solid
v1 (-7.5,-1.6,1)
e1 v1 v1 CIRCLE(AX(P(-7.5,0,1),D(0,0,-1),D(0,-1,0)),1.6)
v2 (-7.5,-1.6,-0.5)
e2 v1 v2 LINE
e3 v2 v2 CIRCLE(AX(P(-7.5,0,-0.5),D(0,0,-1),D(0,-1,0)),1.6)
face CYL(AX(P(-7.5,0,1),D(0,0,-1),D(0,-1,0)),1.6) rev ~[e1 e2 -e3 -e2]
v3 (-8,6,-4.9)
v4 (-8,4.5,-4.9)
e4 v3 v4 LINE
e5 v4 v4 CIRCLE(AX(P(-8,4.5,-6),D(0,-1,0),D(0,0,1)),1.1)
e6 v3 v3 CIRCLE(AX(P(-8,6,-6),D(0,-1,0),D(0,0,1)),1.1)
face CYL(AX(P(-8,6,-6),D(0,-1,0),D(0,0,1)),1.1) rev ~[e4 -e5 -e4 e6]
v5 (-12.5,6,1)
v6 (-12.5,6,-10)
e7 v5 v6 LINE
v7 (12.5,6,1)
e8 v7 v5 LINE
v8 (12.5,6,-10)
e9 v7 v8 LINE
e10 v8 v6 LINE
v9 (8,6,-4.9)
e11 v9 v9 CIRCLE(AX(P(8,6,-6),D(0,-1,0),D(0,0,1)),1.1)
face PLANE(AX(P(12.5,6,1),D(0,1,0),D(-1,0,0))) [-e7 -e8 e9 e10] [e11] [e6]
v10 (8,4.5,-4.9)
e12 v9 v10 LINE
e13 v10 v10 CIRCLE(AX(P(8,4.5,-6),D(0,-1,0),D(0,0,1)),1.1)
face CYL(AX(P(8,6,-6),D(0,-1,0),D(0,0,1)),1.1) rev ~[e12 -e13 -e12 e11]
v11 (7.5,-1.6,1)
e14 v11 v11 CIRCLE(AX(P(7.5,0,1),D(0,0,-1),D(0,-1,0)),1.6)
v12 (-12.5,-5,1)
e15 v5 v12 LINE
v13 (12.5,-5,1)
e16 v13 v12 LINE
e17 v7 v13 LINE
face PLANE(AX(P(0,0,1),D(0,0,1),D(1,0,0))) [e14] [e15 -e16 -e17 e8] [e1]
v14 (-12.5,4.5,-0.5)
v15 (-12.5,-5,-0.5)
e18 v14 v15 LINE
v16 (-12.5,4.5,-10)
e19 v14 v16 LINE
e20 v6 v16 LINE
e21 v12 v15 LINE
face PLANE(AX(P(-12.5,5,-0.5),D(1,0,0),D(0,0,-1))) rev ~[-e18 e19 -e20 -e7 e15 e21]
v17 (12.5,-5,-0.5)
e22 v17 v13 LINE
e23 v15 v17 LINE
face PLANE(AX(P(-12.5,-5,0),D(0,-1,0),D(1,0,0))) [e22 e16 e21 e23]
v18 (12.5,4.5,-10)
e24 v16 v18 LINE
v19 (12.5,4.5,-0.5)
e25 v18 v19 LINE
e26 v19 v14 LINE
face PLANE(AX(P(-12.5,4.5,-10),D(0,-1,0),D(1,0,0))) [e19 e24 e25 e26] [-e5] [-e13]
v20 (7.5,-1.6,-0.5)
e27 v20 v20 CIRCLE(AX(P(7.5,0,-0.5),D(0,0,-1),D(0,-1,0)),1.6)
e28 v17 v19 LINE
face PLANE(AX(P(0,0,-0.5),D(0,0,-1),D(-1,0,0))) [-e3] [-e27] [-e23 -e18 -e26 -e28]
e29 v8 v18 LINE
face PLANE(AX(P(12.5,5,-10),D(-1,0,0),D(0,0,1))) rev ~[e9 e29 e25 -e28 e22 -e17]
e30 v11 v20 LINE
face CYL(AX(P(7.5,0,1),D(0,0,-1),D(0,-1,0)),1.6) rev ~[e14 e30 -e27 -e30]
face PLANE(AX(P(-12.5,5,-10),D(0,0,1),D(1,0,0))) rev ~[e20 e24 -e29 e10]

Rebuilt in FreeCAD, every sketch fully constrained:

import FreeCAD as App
import Part
import Sketcher
Q = App.Units.Quantity


def add_polygon(sketch, points):
    """Adds a closed chain of lines whose ends are joined by coincident constraints."""
    first, n = sketch.GeometryCount, len(points)
    for a, b in zip(points, points[1:] + points[:1]):
        sketch.addGeometry(Part.LineSegment(App.Vector(*a, 0), App.Vector(*b, 0)), False)
    for i in range(n):
        sketch.addConstraint(Sketcher.Constraint("Coincident", first + i, 2, first + (i + 1) % n, 1))

doc = App.newDocument("Part")
body = doc.addObject("PartDesign::Body", "Body")

sketch1 = doc.addObject("Sketcher::SketchObject", "Sketch")
body.addObject(sketch1)
sketch1.AttachmentSupport = (doc.XY_Plane, [""])
sketch1.MapMode = "FlatFace"
add_polygon(sketch1, [(12, 5), (-12, 5), (-12, -5), (12, -5)])
sketch1.addConstraint(Sketcher.Constraint("Horizontal", 0))
sketch1.addConstraint(Sketcher.Constraint("Vertical", 1))
sketch1.addConstraint(Sketcher.Constraint("Horizontal", 2))
sketch1.addConstraint(Sketcher.Constraint("Vertical", 3))
sketch1.addConstraint(Sketcher.Constraint("Symmetric", 0, 2, 2, 2, -1, 1))
sketch1.addConstraint(Sketcher.Constraint("DistanceX", 0, 2, 0, 1, Q("25 mm")))
sketch1.addConstraint(Sketcher.Constraint("DistanceY", 1, 2, 1, 1, Q("10 mm")))
pad1 = doc.addObject("PartDesign::Pad", "Pad")
body.addObject(pad1)
pad1.Profile = sketch1
pad1.Length = 1

sketch2 = doc.addObject("Sketcher::SketchObject", "Sketch001")
body.addObject(sketch2)
sketch2.AttachmentSupport = (doc.XY_Plane, [""])
sketch2.MapMode = "FlatFace"
sketch2.AttachmentOffset = App.Placement(App.Vector(0, 0, 1), App.Rotation())
add_polygon(sketch2, [(-12.5, 6), (-12.5, 5), (12.5, 5), (12.5, 6)])
sketch2.addConstraint(Sketcher.Constraint("Vertical", 0))
sketch2.addConstraint(Sketcher.Constraint("Horizontal", 1))
sketch2.addConstraint(Sketcher.Constraint("Vertical", 2))
sketch2.addConstraint(Sketcher.Constraint("Horizontal", 3))
sketch2.addConstraint(Sketcher.Constraint("DistanceX", 1, 1, 1, 2, Q("25 mm")))
sketch2.addConstraint(Sketcher.Constraint("DistanceY", 0, 2, 0, 1, Q("1 mm")))
sketch2.addConstraint(Sketcher.Constraint("DistanceY", -1, 1, 0, 2, Q("5 mm")))
sketch2.addConstraint(Sketcher.Constraint("DistanceX", 0, 2, -1, 1, Q("12.5 mm")))
pad2 = doc.addObject("PartDesign::Pad", "Pad001")
body.addObject(pad2)
pad2.Profile = sketch2
pad2.Length = 11
pad2.Reversed = True

sketch3 = doc.addObject("Sketcher::SketchObject", "Sketch002")
body.addObject(sketch3)
sketch3.AttachmentSupport = (doc.XY_Plane, [""])
sketch3.MapMode = "FlatFace"
add_polygon(sketch3, [(12, -5), (-12, -5), (-12, 5), (12, 5)])
sketch3.addConstraint(Sketcher.Constraint("Horizontal", 0))
sketch3.addConstraint(Sketcher.Constraint("Vertical", 1))
sketch3.addConstraint(Sketcher.Constraint("Horizontal", 2))
sketch3.addConstraint(Sketcher.Constraint("Vertical", 3))
sketch3.addConstraint(Sketcher.Constraint("Symmetric", 0, 2, 2, 2, -1, 1))
sketch3.addConstraint(Sketcher.Constraint("DistanceX", 0, 2, 0, 1, Q("25 mm")))
sketch3.addConstraint(Sketcher.Constraint("DistanceY", 1, 1, 1, 2, Q("10 mm")))
pad3 = doc.addObject("PartDesign::Pad", "Pad002")
body.addObject(pad3)
pad3.Profile = sketch3
pad3.Length = 0.5
pad3.Reversed = True

sketch4 = doc.addObject("Sketcher::SketchObject", "Sketch003")
body.addObject(sketch4)
sketch4.AttachmentSupport = (doc.XZ_Plane, [""])
sketch4.MapMode = "FlatFace"
sketch4.AttachmentOffset = App.Placement(App.Vector(0, 0, -5), App.Rotation())
add_polygon(sketch4, [(-12, 0), (-12, -10), (12, -10), (12, 0)])
sketch4.addConstraint(Sketcher.Constraint("Vertical", 0))
sketch4.addConstraint(Sketcher.Constraint("Horizontal", 1))
sketch4.addConstraint(Sketcher.Constraint("Vertical", 2))
sketch4.addConstraint(Sketcher.Constraint("Horizontal", 3))
sketch4.addConstraint(Sketcher.Constraint("DistanceX", 1, 1, 1, 2, Q("25 mm")))
sketch4.addConstraint(Sketcher.Constraint("DistanceY", 0, 2, 0, 1, Q("9.5 mm")))
sketch4.addConstraint(Sketcher.Constraint("DistanceY", 0, 2, -1, 1, Q("10 mm")))
sketch4.addConstraint(Sketcher.Constraint("DistanceX", 0, 2, -1, 1, Q("12.5 mm")))
pad4 = doc.addObject("PartDesign::Pad", "Pad003")
body.addObject(pad4)
pad4.Profile = sketch4
pad4.Length = 0.5

sketch5 = doc.addObject("Sketcher::SketchObject", "Sketch004")
body.addObject(sketch5)
sketch5.AttachmentSupport = (doc.XY_Plane, [""])
sketch5.MapMode = "FlatFace"
sketch5.AttachmentOffset = App.Placement(App.Vector(0, 0, 1), App.Rotation())
sketch5.addGeometry(Part.Circle(App.Vector(7.5, 0, 0), App.Vector(0, 0, 1), 1.6), False)
sketch5.addGeometry(Part.Circle(App.Vector(-7.5, 0, 0), App.Vector(0, 0, 1), 1.6), False)
sketch5.addConstraint(Sketcher.Constraint("Equal", 0, 1))
sketch5.addConstraint(Sketcher.Constraint("Symmetric", 0, 3, 1, 3, -1, 1))
sketch5.addConstraint(Sketcher.Constraint("PointOnObject", 0, 3, -1))
sketch5.addConstraint(Sketcher.Constraint("Diameter", 0, Q("3.2 mm")))
sketch5.addConstraint(Sketcher.Constraint("DistanceX", 1, 3, 0, 3, Q("15 mm")))
doc.recompute()
hole = doc.addObject("PartDesign::Hole", "Hole")
body.addObject(hole)
hole.Profile = sketch5
hole.ThreadType = "None"
hole.Diameter = 3.2
hole.DepthType = "Dimension"
hole.Depth = 8
hole.DrillPoint = "Angled"
hole.DrillPointAngle = 118

sketch6 = doc.addObject("Sketcher::SketchObject", "Sketch005")
body.addObject(sketch6)
sketch6.AttachmentSupport = (doc.XZ_Plane, [""])
sketch6.MapMode = "FlatFace"
sketch6.AttachmentOffset = App.Placement(App.Vector(0, 0, -6), App.Rotation())
sketch6.addGeometry(Part.Circle(App.Vector(-8, -6, 0), App.Vector(0, 0, 1), 1.1), False)
sketch6.addGeometry(Part.Circle(App.Vector(8, -6, 0), App.Vector(0, 0, 1), 1.1), False)
sketch6.addConstraint(Sketcher.Constraint("Equal", 0, 1))
sketch6.addConstraint(Sketcher.Constraint("Symmetric", 0, 3, 1, 3, -2))
sketch6.addConstraint(Sketcher.Constraint("Diameter", 0, Q("2.2 mm")))
sketch6.addConstraint(Sketcher.Constraint("DistanceX", 0, 3, -1, 1, Q("8 mm")))
sketch6.addConstraint(Sketcher.Constraint("DistanceY", 0, 3, -1, 1, Q("6 mm")))
doc.recompute()
hole2 = doc.addObject("PartDesign::Hole", "Hole001")
body.addObject(hole2)
hole2.Profile = sketch6
hole2.ThreadType = "None"
hole2.Diameter = 2.2
hole2.DepthType = "Dimension"
hole2.Depth = 8
hole2.DrillPoint = "Angled"
hole2.DrillPointAngle = 118
hole2.Reversed = True

doc.recompute()
